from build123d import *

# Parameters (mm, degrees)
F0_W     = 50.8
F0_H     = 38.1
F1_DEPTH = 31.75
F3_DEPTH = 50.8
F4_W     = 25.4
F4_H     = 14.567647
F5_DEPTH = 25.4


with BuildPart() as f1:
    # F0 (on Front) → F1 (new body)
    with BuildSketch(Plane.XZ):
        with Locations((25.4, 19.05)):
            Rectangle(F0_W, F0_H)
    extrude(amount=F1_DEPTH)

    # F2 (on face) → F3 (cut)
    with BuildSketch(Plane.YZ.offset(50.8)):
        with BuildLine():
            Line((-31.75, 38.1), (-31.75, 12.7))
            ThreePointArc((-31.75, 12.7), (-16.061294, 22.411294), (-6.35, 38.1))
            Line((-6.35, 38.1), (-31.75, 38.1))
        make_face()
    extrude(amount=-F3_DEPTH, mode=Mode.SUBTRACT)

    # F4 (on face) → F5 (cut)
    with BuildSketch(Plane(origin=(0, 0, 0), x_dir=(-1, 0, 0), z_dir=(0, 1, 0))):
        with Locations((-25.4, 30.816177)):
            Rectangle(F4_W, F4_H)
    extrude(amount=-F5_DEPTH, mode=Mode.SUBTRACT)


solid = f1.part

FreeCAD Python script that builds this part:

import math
import FreeCAD as App
import Part
import Sketcher
from FreeCAD import Vector
Q = App.Units.Quantity


def add_polygon(sketch, points):
    """Adds a closed chain of lines whose ends are joined by coincident constraints."""
    first, n = sketch.GeometryCount, len(points)
    for a, b in zip(points, points[1:] + points[:1]):
        sketch.addGeometry(Part.LineSegment(App.Vector(*a, 0), App.Vector(*b, 0)), False)
    for i in range(n):
        sketch.addConstraint(Sketcher.Constraint("Coincident", first + i, 2, first + (i + 1) % n, 1))

doc = App.newDocument("Part")
body = doc.addObject("PartDesign::Body", "Body")

sketch1 = body.newObject("Sketcher::SketchObject", "Sketch")
sketch1.AttachmentSupport = (doc.getObject("XZ_Plane"), [""])
sketch1.MapMode = "FlatFace"
add_polygon(sketch1, [(0, 38), (0, 0), (51, 0), (51, 38)])
sketch1.addConstraint([
    Sketcher.Constraint("Vertical", 0),
    Sketcher.Constraint("Horizontal", 1),
    Sketcher.Constraint("Vertical", 2),
    Sketcher.Constraint("Horizontal", 3),
    Sketcher.Constraint("Coincident", 0, 2, -1, 1),
    Sketcher.Constraint("DistanceX", 1, 1, 1, 2, Q("2 in")),
    Sketcher.Constraint("DistanceY", 0, 2, 0, 1, Q("1.5 in")),
])
pad1 = body.newObject("PartDesign::Pad", "Pad")
pad1.Profile = sketch1
pad1.Length = Q("1.25 in")

sketch2 = body.newObject("Sketcher::SketchObject", "Sketch001")
sketch2.AttachmentSupport = (doc.getObject("YZ_Plane"), [""])
sketch2.MapMode = "FlatFace"
sketch2.AttachmentOffset = App.Placement(Vector(0, 0, 2 * 25.4), App.Rotation())
sketch2.addGeometry([
    Part.LineSegment(Vector(-32, 38, 0), Vector(-32, 13, 0)),
    Part.ArcOfCircle(Part.Circle(Vector(-45, 51, 0), Vector(0, 0, 1), 40), math.radians(-71), math.radians(-19)),
    Part.LineSegment(Vector(-6, 38, 0), Vector(-32, 38, 0)),
], False)
sketch2.addConstraint([
    Sketcher.Constraint("Coincident", 0, 2, 1, 1),
    Sketcher.Constraint("Coincident", 1, 2, 2, 1),
    Sketcher.Constraint("Coincident", 2, 2, 0, 1),
    Sketcher.Constraint("Vertical", 0),
    Sketcher.Constraint("Horizontal", 2),
    Sketcher.Constraint("Equal", 2, 0),
    Sketcher.Constraint("DistanceX", 2, 2, 2, 1, Q("1 in")),
    Sketcher.Constraint("DistanceY", -1, 1, 0, 2, Q("0.5 in")),
    Sketcher.Constraint("DistanceX", 0, 2, -1, 1, Q("1.25 in")),
    Sketcher.Constraint("Radius", 1, 40.273412),
])
pocket1 = body.newObject("PartDesign::Pocket", "Pocket")
pocket1.Profile = sketch2
pocket1.Length = Q("2 in")

sketch3 = body.newObject("Sketcher::SketchObject", "Sketch002")
sketch3.AttachmentSupport = (doc.getObject("XZ_Plane"), [""])
sketch3.MapMode = "FlatFace"
add_polygon(sketch3, [(38, 38), (38, 24), (13, 24), (13, 38)])
sketch3.addConstraint([
    Sketcher.Constraint("Vertical", 0),
    Sketcher.Constraint("Horizontal", 1),
    Sketcher.Constraint("Vertical", 2),
    Sketcher.Constraint("Horizontal", 3),
    Sketcher.Constraint("DistanceX", 1, 2, 1, 1, Q("1 in")),
    Sketcher.Constraint("DistanceX", -1, 1, 0, 2, Q("1.5 in")),
    Sketcher.Constraint("DistanceY", -1, 1, 2, 2, Q("1.5 in")),
    Sketcher.Constraint("DistanceY", 0, 2, 0, 1, 14.567647),
])
pocket2 = body.newObject("PartDesign::Pocket", "Pocket001")
pocket2.Profile = sketch3
pocket2.Length = Q("1 in")
pocket2.Reversed = True

doc.recompute()
